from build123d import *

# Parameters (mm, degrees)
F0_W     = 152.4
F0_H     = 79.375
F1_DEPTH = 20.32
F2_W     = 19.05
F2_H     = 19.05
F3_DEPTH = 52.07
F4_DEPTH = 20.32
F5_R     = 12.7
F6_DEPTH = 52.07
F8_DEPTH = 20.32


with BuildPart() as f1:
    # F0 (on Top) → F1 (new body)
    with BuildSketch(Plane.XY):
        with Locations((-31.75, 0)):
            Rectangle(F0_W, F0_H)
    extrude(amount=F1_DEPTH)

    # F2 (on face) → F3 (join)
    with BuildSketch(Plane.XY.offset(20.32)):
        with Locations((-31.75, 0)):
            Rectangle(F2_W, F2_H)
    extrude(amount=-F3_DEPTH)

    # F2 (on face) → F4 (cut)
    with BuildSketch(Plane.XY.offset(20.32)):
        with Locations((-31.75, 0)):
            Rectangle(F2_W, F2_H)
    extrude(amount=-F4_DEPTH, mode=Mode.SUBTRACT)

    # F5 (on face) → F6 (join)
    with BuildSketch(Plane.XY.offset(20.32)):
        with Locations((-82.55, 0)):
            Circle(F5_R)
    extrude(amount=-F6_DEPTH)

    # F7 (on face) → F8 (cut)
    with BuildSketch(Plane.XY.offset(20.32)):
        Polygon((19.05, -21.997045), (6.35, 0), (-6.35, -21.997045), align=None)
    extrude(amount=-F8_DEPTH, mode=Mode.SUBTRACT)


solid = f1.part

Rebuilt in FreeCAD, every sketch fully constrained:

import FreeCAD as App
import Part
import Sketcher

V = App.Vector
Q = App.Units.Quantity

doc = App.newDocument("Part")
params = doc.addObject("Spreadsheet::Sheet", "Params")
for row, (alias, value) in enumerate([
    ("sketch1_width", "6 in"),
    ("sketch1_height", "3.125 in"),
    ("pad1_length", "0.8 in"),
    ("sketch2_width", "0.75 in"),
    ("pad2_length", "2.05 in"),
    ("sketch3_width", "0.75 in"),
    ("pocket1_length", "0.8 in"),
    ("sketch4_diameter", "1 in"),
    ("pad3_length", "2.05 in"),
    ("sketch5_width", "1 in"),
    ("sketch5_length", "1 in"),
    ("pocket2_length", "0.8 in"),
], start=1):
    params.set(f"A{row}", alias)
    params.set(f"B{row}", "=" + value)
    params.setAlias(f"B{row}", alias)

body = doc.addObject("PartDesign::Body", "Body")
body.AllowCompound = True

# Sketch on XY plane
sketch1 = doc.addObject("Sketcher::SketchObject", "Sketch")
body.addObject(sketch1)
sketch1.AttachmentSupport = (doc.XY_Plane, [""])
sketch1.MapMode = "FlatFace"
sketch1.addGeometry(Part.LineSegment(V(-108, 40, 0), V(-108, -40, 0)), False)
sketch1.addGeometry(Part.LineSegment(V(-108, -40, 0), V(44, -40, 0)), False)
sketch1.addGeometry(Part.LineSegment(V(44, -40, 0), V(44, 40, 0)), False)
sketch1.addGeometry(Part.LineSegment(V(44, 40, 0), V(-108, 40, 0)), False)
sketch1.addConstraint(Sketcher.Constraint("Coincident", 0, 2, 1, 1))
sketch1.addConstraint(Sketcher.Constraint("Coincident", 1, 2, 2, 1))
sketch1.addConstraint(Sketcher.Constraint("Coincident", 2, 2, 3, 1))
sketch1.addConstraint(Sketcher.Constraint("Coincident", 3, 2, 0, 1))
sketch1.addConstraint(Sketcher.Constraint("Vertical", 0))
sketch1.addConstraint(Sketcher.Constraint("Horizontal", 1))
sketch1.addConstraint(Sketcher.Constraint("Vertical", 2))
sketch1.addConstraint(Sketcher.Constraint("Horizontal", 3))
sketch1.addConstraint(Sketcher.Constraint("DistanceX", 1, 1, 1, 2, Q("6 in")))
sketch1.addConstraint(Sketcher.Constraint("DistanceY", 0, 2, 0, 1, Q("3.125 in")))
sketch1.addConstraint(Sketcher.Constraint("DistanceX", 0, 2, -1, 1, Q("4.25 in")))
sketch1.addConstraint(Sketcher.Constraint("DistanceY", 0, 2, -1, 1, Q("1.5625 in")))
sketch1.setExpression("Constraints[8]", "Params.sketch1_width")
sketch1.setExpression("Constraints[9]", "Params.sketch1_height")
pad1 = doc.addObject("PartDesign::Pad", "Pad")
body.addObject(pad1)
pad1.Profile = sketch1
pad1.setExpression("Length", "Params.pad1_length")

# Sketch on XY plane
sketch2 = doc.addObject("Sketcher::SketchObject", "Sketch001")
body.addObject(sketch2)
sketch2.AttachmentSupport = (doc.XY_Plane, [""])
sketch2.MapMode = "FlatFace"
sketch2.AttachmentOffset = App.Placement(V(0, 0, 0.8 * 25.4), App.Rotation())
sketch2.addGeometry(Part.LineSegment(V(-41, 10, 0), V(-41, -10, 0)), False)
sketch2.addGeometry(Part.LineSegment(V(-41, -10, 0), V(-22, -10, 0)), False)
sketch2.addGeometry(Part.LineSegment(V(-22, -10, 0), V(-22, 10, 0)), False)
sketch2.addGeometry(Part.LineSegment(V(-22, 10, 0), V(-41, 10, 0)), False)
sketch2.addConstraint(Sketcher.Constraint("Coincident", 0, 2, 1, 1))
sketch2.addConstraint(Sketcher.Constraint("Coincident", 1, 2, 2, 1))
sketch2.addConstraint(Sketcher.Constraint("Coincident", 2, 2, 3, 1))
sketch2.addConstraint(Sketcher.Constraint("Coincident", 3, 2, 0, 1))
sketch2.addConstraint(Sketcher.Constraint("Vertical", 0))
sketch2.addConstraint(Sketcher.Constraint("Horizontal", 1))
sketch2.addConstraint(Sketcher.Constraint("Vertical", 2))
sketch2.addConstraint(Sketcher.Constraint("Horizontal", 3))
sketch2.addConstraint(Sketcher.Constraint("Equal", 3, 0))
sketch2.addConstraint(Sketcher.Constraint("DistanceX", 1, 1, 1, 2, Q("0.75 in")))
sketch2.addConstraint(Sketcher.Constraint("DistanceX", 0, 2, -1, 1, Q("1.625 in")))
sketch2.addConstraint(Sketcher.Constraint("DistanceY", 0, 2, -1, 1, Q("0.375 in")))
sketch2.setExpression("Constraints[9]", "Params.sketch2_width")
pad2 = doc.addObject("PartDesign::Pad", "Pad001")
body.addObject(pad2)
pad2.Profile = sketch2
pad2.setExpression("Length", "Params.pad2_length")
pad2.Reversed = True

# Sketch on XY plane
sketch3 = doc.addObject("Sketcher::SketchObject", "Sketch002")
body.addObject(sketch3)
sketch3.AttachmentSupport = (doc.XY_Plane, [""])
sketch3.MapMode = "FlatFace"
sketch3.AttachmentOffset = App.Placement(V(0, 0, 0.8 * 25.4), App.Rotation())
sketch3.addGeometry(Part.LineSegment(V(-41, 10, 0), V(-41, -10, 0)), False)
sketch3.addGeometry(Part.LineSegment(V(-41, -10, 0), V(-22, -10, 0)), False)
sketch3.addGeometry(Part.LineSegment(V(-22, -10, 0), V(-22, 10, 0)), False)
sketch3.addGeometry(Part.LineSegment(V(-22, 10, 0), V(-41, 10, 0)), False)
sketch3.addConstraint(Sketcher.Constraint("Coincident", 0, 2, 1, 1))
sketch3.addConstraint(Sketcher.Constraint("Coincident", 1, 2, 2, 1))
sketch3.addConstraint(Sketcher.Constraint("Coincident", 2, 2, 3, 1))
sketch3.addConstraint(Sketcher.Constraint("Coincident", 3, 2, 0, 1))
sketch3.addConstraint(Sketcher.Constraint("Vertical", 0))
sketch3.addConstraint(Sketcher.Constraint("Horizontal", 1))
sketch3.addConstraint(Sketcher.Constraint("Vertical", 2))
sketch3.addConstraint(Sketcher.Constraint("Horizontal", 3))
sketch3.addConstraint(Sketcher.Constraint("Equal", 3, 0))
sketch3.addConstraint(Sketcher.Constraint("DistanceX", 1, 1, 1, 2, Q("0.75 in")))
sketch3.addConstraint(Sketcher.Constraint("DistanceX", 0, 2, -1, 1, Q("1.625 in")))
sketch3.addConstraint(Sketcher.Constraint("DistanceY", 0, 2, -1, 1, Q("0.375 in")))
sketch3.setExpression("Constraints[9]", "Params.sketch3_width")
pocket1 = doc.addObject("PartDesign::Pocket", "Pocket")
body.addObject(pocket1)
pocket1.Profile = sketch3
pocket1.setExpression("Length", "Params.pocket1_length")

# Sketch on XY plane
sketch4 = doc.addObject("Sketcher::SketchObject", "Sketch003")
body.addObject(sketch4)
sketch4.AttachmentSupport = (doc.XY_Plane, [""])
sketch4.MapMode = "FlatFace"
sketch4.AttachmentOffset = App.Placement(V(0, 0, 0.8 * 25.4), App.Rotation())
sketch4.addGeometry(Part.Circle(V(-83, 0, 0), V(0, 0, 1), 13), False)
sketch4.addConstraint(Sketcher.Constraint("PointOnObject", 0, 3, -1))
sketch4.addConstraint(Sketcher.Constraint("Diameter", 0, Q("1 in")))
sketch4.addConstraint(Sketcher.Constraint("DistanceX", 0, 3, -1, 1, Q("3.25 in")))
sketch4.setExpression("Constraints[1]", "Params.sketch4_diameter")
pad3 = doc.addObject("PartDesign::Pad", "Pad002")
body.addObject(pad3)
pad3.Profile = sketch4
pad3.setExpression("Length", "Params.pad3_length")
pad3.Reversed = True

# Sketch on XY plane
sketch5 = doc.addObject("Sketcher::SketchObject", "Sketch004")
body.addObject(sketch5)
sketch5.AttachmentSupport = (doc.XY_Plane, [""])
sketch5.MapMode = "FlatFace"
sketch5.AttachmentOffset = App.Placement(V(0, 0, 0.8 * 25.4), App.Rotation())
sketch5.addGeometry(Part.LineSegment(V(19, -22, 0), V(6, 0, 0)), False)
sketch5.addGeometry(Part.LineSegment(V(6, 0, 0), V(-6, -22, 0)), False)
sketch5.addGeometry(Part.LineSegment(V(-6, -22, 0), V(19, -22, 0)), False)
sketch5.addConstraint(Sketcher.Constraint("Coincident", 0, 2, 1, 1))
sketch5.addConstraint(Sketcher.Constraint("Coincident", 1, 2, 2, 1))
sketch5.addConstraint(Sketcher.Constraint("Coincident", 2, 2, 0, 1))
sketch5.addConstraint(Sketcher.Constraint("Horizontal", 2))
sketch5.addConstraint(Sketcher.Constraint("PointOnObject", 0, 2, -1))
sketch5.addConstraint(Sketcher.Constraint("Equal", 0, 1))
sketch5.addConstraint(Sketcher.Constraint("DistanceX", 2, 1, 2, 2, Q("1 in")))
sketch5.addConstraint(Sketcher.Constraint("Distance", 0, Q("1 in")))
sketch5.addConstraint(Sketcher.Constraint("DistanceX", -1, 1, 0, 2, Q("0.25 in")))
sketch5.setExpression("Constraints[6]", "Params.sketch5_width")
sketch5.setExpression("Constraints[7]", "Params.sketch5_length")
pocket2 = doc.addObject("PartDesign::Pocket", "Pocket001")
body.addObject(pocket2)
pocket2.Profile = sketch5
pocket2.setExpression("Length", "Params.pocket2_length")

doc.recompute()
